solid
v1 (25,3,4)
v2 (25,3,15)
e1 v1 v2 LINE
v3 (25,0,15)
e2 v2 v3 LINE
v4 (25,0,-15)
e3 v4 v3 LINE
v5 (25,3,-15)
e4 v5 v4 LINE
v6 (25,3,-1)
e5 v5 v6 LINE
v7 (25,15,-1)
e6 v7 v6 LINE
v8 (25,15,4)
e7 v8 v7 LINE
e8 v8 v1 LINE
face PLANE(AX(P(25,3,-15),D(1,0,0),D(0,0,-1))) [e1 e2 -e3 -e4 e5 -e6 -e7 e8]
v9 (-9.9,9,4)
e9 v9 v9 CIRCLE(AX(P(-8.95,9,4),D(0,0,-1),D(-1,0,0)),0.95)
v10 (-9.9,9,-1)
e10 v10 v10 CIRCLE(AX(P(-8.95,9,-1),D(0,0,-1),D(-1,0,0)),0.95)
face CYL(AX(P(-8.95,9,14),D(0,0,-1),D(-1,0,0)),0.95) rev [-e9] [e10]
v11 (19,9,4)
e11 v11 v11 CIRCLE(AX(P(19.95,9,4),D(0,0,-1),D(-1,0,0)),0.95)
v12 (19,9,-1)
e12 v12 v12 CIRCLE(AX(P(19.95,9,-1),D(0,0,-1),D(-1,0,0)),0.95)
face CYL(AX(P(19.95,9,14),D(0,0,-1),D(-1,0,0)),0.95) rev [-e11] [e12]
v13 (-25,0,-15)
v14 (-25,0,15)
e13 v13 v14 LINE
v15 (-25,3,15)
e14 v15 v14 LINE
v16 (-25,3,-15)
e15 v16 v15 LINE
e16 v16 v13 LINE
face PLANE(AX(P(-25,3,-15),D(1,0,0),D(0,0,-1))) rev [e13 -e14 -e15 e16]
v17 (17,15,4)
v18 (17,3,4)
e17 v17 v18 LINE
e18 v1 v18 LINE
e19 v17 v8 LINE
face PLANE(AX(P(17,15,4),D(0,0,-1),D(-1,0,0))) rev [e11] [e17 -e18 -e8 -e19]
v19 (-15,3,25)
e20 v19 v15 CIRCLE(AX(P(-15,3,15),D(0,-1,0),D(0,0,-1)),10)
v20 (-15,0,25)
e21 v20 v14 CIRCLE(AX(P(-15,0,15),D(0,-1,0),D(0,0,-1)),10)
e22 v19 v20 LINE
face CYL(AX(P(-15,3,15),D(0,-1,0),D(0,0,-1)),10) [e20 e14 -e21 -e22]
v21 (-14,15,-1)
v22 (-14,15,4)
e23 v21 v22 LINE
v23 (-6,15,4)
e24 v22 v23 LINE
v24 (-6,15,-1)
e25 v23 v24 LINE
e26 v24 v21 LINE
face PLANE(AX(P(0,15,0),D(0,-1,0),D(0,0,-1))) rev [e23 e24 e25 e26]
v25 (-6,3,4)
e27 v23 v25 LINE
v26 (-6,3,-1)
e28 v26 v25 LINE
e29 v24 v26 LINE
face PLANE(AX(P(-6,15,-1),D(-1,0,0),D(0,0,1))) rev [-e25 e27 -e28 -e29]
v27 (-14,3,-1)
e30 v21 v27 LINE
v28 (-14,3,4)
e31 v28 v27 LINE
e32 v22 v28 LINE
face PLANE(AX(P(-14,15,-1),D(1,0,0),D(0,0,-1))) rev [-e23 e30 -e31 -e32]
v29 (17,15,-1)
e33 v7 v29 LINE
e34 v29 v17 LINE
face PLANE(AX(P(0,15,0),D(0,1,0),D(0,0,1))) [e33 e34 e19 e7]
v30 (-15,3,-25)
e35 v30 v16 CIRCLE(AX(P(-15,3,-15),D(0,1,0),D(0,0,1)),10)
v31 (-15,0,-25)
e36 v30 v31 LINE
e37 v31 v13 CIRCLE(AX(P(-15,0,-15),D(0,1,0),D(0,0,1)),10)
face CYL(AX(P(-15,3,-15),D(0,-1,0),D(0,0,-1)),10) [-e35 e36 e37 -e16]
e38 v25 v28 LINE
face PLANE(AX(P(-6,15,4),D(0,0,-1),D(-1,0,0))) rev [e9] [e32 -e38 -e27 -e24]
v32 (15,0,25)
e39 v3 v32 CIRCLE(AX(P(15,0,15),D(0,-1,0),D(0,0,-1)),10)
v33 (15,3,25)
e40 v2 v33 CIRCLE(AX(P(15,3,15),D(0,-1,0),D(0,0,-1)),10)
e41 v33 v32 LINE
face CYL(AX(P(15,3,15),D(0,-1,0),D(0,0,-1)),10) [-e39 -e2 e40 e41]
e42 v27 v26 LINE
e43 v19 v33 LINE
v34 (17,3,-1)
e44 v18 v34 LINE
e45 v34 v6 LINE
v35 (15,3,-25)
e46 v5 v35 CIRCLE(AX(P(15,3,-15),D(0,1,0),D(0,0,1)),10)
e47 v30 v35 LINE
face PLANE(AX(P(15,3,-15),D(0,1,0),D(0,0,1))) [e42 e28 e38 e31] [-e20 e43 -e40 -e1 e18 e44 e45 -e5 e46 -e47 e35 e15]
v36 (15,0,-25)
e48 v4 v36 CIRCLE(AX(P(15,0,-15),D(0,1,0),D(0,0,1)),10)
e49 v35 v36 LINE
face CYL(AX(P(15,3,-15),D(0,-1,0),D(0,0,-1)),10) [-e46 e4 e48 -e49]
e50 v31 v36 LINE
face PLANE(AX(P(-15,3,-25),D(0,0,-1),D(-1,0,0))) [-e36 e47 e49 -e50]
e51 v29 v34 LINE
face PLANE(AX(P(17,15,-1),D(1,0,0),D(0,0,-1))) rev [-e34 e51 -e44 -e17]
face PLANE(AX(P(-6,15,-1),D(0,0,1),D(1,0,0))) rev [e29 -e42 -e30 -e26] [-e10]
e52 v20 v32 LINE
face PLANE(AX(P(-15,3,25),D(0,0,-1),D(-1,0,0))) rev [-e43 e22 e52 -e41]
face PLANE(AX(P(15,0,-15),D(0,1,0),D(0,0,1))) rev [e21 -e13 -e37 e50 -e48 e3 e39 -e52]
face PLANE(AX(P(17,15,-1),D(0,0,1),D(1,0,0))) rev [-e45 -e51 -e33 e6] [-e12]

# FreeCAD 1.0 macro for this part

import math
import FreeCAD as App
import Part
import Sketcher

V = App.Vector
Q = App.Units.Quantity


def add_polygon(sketch, points):
    """Adds a closed chain of lines whose ends are joined by coincident constraints."""
    first, n = sketch.GeometryCount, len(points)
    for a, b in zip(points, points[1:] + points[:1]):
        sketch.addGeometry(Part.LineSegment(App.Vector(*a, 0), App.Vector(*b, 0)), False)
    for i in range(n):
        sketch.addConstraint(Sketcher.Constraint("Coincident", first + i, 2, first + (i + 1) % n, 1))

doc = App.newDocument("Part")
body = doc.addObject("PartDesign::Body", "Body")

# Sketch on XZ plane
sketch1 = doc.addObject("Sketcher::SketchObject", "Sketch")
body.addObject(sketch1)
sketch1.AttachmentSupport = (doc.XZ_Plane, [""])
sketch1.MapMode = "FlatFace"
sketch1.addGeometry([
    Part.LineSegment(V(15, -25, 0), V(-15, -25, 0)),  # 0
    Part.ArcOfCircle(Part.Circle(V(-15, -15, 0), V(0, 0, 1), 10), math.radians(180), math.radians(270)),  # 1
    Part.LineSegment(V(-25, -15, 0), V(-25, 15, 0)),  # 2
    Part.ArcOfCircle(Part.Circle(V(-15, 15, 0), V(0, 0, 1), 10), math.radians(90), math.radians(180)),  # 3
    Part.LineSegment(V(-15, 25, 0), V(15, 25, 0)),  # 4
    Part.ArcOfCircle(Part.Circle(V(15, 15, 0), V(0, 0, 1), 10), math.radians(0), math.radians(90)),  # 5
    Part.LineSegment(V(25, 15, 0), V(25, -15, 0)),  # 6
    Part.ArcOfCircle(Part.Circle(V(15, -15, 0), V(0, 0, 1), 10), math.radians(-90), math.radians(0)),  # 7
], False)
sketch1.addConstraint([
    Sketcher.Constraint("Tangent", 0, 2, 1, 2),
    Sketcher.Constraint("Tangent", 1, 1, 2, 1),
    Sketcher.Constraint("Tangent", 2, 2, 3, 2),
    Sketcher.Constraint("Tangent", 3, 1, 4, 1),
    Sketcher.Constraint("Tangent", 4, 2, 5, 2),
    Sketcher.Constraint("Tangent", 5, 1, 6, 1),
    Sketcher.Constraint("Tangent", 6, 2, 7, 2),
    Sketcher.Constraint("Tangent", 7, 1, 0, 1),
    Sketcher.Constraint("Horizontal", 0),
    Sketcher.Constraint("Vertical", 2),
    Sketcher.Constraint("Horizontal", 4),
    Sketcher.Constraint("Vertical", 6),
    Sketcher.Constraint("Equal", 1, 3),
    Sketcher.Constraint("Equal", 3, 5),
    Sketcher.Constraint("Equal", 5, 7),
    Sketcher.Constraint("Symmetric", 1, 3, 5, 3, -1, 1),
    Sketcher.Constraint("Equal", 4, 2),
    Sketcher.Constraint("Radius", 1, Q("10 mm")),
    Sketcher.Constraint("DistanceX", 0, 2, 0, 1, Q("30 mm")),
])
pad1 = doc.addObject("PartDesign::Pad", "Pad")
body.addObject(pad1)
pad1.Profile = sketch1
pad1.Length = 3
pad1.Reversed = True

# Sketch on XZ plane
sketch2 = doc.addObject("Sketcher::SketchObject", "Sketch001")
body.addObject(sketch2)
sketch2.AttachmentSupport = (doc.XZ_Plane, [""])
sketch2.MapMode = "FlatFace"
add_polygon(sketch2, [(17, -1), (17, 4), (25, 4), (25, -1)])  # lines 0-3
add_polygon(sketch2, [(-14, -1), (-14, 4), (-6, 4), (-6, -1)])  # lines 4-7
sketch2.addConstraint([
    Sketcher.Constraint("Vertical", 0),
    Sketcher.Constraint("Horizontal", 1),
    Sketcher.Constraint("Vertical", 2),
    Sketcher.Constraint("Horizontal", 3),
    Sketcher.Constraint("Vertical", 4),
    Sketcher.Constraint("Horizontal", 5),
    Sketcher.Constraint("Vertical", 6),
    Sketcher.Constraint("Horizontal", 7),
    Sketcher.Constraint("Horizontal", 1, 2, 4, 2),
    Sketcher.Constraint("Horizontal", 3, 2, 6, 2),
    Sketcher.Constraint("Equal", 3, 5),
    Sketcher.Constraint("DistanceX", 1, 1, 1, 2, Q("8 mm")),
    Sketcher.Constraint("DistanceY", 0, 1, 0, 2, Q("5 mm")),
    Sketcher.Constraint("DistanceX", -1, 1, 0, 2, Q("17 mm")),
    Sketcher.Constraint("DistanceY", -1, 1, 0, 2, Q("4 mm")),
    Sketcher.Constraint("DistanceX", 4, 2, -1, 1, Q("14 mm")),
])
pad2 = doc.addObject("PartDesign::Pad", "Pad001")
body.addObject(pad2)
pad2.Profile = sketch2
pad2.Length = 15
pad2.Reversed = True

# Sketch on XY plane
sketch3 = doc.addObject("Sketcher::SketchObject", "Sketch002")
body.addObject(sketch3)
sketch3.AttachmentSupport = (doc.XY_Plane, [""])
sketch3.MapMode = "FlatFace"
sketch3.AttachmentOffset = App.Placement(V(0, 0, -1), App.Rotation())
sketch3.addGeometry([
    Part.Circle(V(-8.95, 9, 0), V(0, 0, 1), 0.95),
    Part.Circle(V(19.95, 9, 0), V(0, 0, 1), 0.95),
], False)
sketch3.addConstraint([
    Sketcher.Constraint("Equal", 0, 1),
    Sketcher.Constraint("Horizontal", 0, 3, 1, 3),
    Sketcher.Constraint("Diameter", 0, Q("1.9 mm")),
    Sketcher.Constraint("DistanceY", -1, 1, 0, 3, Q("9 mm")),
    Sketcher.Constraint("DistanceX", 0, 3, 1, 3, Q("28.9 mm")),
    Sketcher.Constraint("DistanceX", 0, 3, -1, 1, Q("8.95 mm")),
])
pocket1 = doc.addObject("PartDesign::Pocket", "Pocket")
body.addObject(pocket1)
pocket1.Profile = sketch3
pocket1.Length = 15
pocket1.Reversed = True

doc.recompute()
